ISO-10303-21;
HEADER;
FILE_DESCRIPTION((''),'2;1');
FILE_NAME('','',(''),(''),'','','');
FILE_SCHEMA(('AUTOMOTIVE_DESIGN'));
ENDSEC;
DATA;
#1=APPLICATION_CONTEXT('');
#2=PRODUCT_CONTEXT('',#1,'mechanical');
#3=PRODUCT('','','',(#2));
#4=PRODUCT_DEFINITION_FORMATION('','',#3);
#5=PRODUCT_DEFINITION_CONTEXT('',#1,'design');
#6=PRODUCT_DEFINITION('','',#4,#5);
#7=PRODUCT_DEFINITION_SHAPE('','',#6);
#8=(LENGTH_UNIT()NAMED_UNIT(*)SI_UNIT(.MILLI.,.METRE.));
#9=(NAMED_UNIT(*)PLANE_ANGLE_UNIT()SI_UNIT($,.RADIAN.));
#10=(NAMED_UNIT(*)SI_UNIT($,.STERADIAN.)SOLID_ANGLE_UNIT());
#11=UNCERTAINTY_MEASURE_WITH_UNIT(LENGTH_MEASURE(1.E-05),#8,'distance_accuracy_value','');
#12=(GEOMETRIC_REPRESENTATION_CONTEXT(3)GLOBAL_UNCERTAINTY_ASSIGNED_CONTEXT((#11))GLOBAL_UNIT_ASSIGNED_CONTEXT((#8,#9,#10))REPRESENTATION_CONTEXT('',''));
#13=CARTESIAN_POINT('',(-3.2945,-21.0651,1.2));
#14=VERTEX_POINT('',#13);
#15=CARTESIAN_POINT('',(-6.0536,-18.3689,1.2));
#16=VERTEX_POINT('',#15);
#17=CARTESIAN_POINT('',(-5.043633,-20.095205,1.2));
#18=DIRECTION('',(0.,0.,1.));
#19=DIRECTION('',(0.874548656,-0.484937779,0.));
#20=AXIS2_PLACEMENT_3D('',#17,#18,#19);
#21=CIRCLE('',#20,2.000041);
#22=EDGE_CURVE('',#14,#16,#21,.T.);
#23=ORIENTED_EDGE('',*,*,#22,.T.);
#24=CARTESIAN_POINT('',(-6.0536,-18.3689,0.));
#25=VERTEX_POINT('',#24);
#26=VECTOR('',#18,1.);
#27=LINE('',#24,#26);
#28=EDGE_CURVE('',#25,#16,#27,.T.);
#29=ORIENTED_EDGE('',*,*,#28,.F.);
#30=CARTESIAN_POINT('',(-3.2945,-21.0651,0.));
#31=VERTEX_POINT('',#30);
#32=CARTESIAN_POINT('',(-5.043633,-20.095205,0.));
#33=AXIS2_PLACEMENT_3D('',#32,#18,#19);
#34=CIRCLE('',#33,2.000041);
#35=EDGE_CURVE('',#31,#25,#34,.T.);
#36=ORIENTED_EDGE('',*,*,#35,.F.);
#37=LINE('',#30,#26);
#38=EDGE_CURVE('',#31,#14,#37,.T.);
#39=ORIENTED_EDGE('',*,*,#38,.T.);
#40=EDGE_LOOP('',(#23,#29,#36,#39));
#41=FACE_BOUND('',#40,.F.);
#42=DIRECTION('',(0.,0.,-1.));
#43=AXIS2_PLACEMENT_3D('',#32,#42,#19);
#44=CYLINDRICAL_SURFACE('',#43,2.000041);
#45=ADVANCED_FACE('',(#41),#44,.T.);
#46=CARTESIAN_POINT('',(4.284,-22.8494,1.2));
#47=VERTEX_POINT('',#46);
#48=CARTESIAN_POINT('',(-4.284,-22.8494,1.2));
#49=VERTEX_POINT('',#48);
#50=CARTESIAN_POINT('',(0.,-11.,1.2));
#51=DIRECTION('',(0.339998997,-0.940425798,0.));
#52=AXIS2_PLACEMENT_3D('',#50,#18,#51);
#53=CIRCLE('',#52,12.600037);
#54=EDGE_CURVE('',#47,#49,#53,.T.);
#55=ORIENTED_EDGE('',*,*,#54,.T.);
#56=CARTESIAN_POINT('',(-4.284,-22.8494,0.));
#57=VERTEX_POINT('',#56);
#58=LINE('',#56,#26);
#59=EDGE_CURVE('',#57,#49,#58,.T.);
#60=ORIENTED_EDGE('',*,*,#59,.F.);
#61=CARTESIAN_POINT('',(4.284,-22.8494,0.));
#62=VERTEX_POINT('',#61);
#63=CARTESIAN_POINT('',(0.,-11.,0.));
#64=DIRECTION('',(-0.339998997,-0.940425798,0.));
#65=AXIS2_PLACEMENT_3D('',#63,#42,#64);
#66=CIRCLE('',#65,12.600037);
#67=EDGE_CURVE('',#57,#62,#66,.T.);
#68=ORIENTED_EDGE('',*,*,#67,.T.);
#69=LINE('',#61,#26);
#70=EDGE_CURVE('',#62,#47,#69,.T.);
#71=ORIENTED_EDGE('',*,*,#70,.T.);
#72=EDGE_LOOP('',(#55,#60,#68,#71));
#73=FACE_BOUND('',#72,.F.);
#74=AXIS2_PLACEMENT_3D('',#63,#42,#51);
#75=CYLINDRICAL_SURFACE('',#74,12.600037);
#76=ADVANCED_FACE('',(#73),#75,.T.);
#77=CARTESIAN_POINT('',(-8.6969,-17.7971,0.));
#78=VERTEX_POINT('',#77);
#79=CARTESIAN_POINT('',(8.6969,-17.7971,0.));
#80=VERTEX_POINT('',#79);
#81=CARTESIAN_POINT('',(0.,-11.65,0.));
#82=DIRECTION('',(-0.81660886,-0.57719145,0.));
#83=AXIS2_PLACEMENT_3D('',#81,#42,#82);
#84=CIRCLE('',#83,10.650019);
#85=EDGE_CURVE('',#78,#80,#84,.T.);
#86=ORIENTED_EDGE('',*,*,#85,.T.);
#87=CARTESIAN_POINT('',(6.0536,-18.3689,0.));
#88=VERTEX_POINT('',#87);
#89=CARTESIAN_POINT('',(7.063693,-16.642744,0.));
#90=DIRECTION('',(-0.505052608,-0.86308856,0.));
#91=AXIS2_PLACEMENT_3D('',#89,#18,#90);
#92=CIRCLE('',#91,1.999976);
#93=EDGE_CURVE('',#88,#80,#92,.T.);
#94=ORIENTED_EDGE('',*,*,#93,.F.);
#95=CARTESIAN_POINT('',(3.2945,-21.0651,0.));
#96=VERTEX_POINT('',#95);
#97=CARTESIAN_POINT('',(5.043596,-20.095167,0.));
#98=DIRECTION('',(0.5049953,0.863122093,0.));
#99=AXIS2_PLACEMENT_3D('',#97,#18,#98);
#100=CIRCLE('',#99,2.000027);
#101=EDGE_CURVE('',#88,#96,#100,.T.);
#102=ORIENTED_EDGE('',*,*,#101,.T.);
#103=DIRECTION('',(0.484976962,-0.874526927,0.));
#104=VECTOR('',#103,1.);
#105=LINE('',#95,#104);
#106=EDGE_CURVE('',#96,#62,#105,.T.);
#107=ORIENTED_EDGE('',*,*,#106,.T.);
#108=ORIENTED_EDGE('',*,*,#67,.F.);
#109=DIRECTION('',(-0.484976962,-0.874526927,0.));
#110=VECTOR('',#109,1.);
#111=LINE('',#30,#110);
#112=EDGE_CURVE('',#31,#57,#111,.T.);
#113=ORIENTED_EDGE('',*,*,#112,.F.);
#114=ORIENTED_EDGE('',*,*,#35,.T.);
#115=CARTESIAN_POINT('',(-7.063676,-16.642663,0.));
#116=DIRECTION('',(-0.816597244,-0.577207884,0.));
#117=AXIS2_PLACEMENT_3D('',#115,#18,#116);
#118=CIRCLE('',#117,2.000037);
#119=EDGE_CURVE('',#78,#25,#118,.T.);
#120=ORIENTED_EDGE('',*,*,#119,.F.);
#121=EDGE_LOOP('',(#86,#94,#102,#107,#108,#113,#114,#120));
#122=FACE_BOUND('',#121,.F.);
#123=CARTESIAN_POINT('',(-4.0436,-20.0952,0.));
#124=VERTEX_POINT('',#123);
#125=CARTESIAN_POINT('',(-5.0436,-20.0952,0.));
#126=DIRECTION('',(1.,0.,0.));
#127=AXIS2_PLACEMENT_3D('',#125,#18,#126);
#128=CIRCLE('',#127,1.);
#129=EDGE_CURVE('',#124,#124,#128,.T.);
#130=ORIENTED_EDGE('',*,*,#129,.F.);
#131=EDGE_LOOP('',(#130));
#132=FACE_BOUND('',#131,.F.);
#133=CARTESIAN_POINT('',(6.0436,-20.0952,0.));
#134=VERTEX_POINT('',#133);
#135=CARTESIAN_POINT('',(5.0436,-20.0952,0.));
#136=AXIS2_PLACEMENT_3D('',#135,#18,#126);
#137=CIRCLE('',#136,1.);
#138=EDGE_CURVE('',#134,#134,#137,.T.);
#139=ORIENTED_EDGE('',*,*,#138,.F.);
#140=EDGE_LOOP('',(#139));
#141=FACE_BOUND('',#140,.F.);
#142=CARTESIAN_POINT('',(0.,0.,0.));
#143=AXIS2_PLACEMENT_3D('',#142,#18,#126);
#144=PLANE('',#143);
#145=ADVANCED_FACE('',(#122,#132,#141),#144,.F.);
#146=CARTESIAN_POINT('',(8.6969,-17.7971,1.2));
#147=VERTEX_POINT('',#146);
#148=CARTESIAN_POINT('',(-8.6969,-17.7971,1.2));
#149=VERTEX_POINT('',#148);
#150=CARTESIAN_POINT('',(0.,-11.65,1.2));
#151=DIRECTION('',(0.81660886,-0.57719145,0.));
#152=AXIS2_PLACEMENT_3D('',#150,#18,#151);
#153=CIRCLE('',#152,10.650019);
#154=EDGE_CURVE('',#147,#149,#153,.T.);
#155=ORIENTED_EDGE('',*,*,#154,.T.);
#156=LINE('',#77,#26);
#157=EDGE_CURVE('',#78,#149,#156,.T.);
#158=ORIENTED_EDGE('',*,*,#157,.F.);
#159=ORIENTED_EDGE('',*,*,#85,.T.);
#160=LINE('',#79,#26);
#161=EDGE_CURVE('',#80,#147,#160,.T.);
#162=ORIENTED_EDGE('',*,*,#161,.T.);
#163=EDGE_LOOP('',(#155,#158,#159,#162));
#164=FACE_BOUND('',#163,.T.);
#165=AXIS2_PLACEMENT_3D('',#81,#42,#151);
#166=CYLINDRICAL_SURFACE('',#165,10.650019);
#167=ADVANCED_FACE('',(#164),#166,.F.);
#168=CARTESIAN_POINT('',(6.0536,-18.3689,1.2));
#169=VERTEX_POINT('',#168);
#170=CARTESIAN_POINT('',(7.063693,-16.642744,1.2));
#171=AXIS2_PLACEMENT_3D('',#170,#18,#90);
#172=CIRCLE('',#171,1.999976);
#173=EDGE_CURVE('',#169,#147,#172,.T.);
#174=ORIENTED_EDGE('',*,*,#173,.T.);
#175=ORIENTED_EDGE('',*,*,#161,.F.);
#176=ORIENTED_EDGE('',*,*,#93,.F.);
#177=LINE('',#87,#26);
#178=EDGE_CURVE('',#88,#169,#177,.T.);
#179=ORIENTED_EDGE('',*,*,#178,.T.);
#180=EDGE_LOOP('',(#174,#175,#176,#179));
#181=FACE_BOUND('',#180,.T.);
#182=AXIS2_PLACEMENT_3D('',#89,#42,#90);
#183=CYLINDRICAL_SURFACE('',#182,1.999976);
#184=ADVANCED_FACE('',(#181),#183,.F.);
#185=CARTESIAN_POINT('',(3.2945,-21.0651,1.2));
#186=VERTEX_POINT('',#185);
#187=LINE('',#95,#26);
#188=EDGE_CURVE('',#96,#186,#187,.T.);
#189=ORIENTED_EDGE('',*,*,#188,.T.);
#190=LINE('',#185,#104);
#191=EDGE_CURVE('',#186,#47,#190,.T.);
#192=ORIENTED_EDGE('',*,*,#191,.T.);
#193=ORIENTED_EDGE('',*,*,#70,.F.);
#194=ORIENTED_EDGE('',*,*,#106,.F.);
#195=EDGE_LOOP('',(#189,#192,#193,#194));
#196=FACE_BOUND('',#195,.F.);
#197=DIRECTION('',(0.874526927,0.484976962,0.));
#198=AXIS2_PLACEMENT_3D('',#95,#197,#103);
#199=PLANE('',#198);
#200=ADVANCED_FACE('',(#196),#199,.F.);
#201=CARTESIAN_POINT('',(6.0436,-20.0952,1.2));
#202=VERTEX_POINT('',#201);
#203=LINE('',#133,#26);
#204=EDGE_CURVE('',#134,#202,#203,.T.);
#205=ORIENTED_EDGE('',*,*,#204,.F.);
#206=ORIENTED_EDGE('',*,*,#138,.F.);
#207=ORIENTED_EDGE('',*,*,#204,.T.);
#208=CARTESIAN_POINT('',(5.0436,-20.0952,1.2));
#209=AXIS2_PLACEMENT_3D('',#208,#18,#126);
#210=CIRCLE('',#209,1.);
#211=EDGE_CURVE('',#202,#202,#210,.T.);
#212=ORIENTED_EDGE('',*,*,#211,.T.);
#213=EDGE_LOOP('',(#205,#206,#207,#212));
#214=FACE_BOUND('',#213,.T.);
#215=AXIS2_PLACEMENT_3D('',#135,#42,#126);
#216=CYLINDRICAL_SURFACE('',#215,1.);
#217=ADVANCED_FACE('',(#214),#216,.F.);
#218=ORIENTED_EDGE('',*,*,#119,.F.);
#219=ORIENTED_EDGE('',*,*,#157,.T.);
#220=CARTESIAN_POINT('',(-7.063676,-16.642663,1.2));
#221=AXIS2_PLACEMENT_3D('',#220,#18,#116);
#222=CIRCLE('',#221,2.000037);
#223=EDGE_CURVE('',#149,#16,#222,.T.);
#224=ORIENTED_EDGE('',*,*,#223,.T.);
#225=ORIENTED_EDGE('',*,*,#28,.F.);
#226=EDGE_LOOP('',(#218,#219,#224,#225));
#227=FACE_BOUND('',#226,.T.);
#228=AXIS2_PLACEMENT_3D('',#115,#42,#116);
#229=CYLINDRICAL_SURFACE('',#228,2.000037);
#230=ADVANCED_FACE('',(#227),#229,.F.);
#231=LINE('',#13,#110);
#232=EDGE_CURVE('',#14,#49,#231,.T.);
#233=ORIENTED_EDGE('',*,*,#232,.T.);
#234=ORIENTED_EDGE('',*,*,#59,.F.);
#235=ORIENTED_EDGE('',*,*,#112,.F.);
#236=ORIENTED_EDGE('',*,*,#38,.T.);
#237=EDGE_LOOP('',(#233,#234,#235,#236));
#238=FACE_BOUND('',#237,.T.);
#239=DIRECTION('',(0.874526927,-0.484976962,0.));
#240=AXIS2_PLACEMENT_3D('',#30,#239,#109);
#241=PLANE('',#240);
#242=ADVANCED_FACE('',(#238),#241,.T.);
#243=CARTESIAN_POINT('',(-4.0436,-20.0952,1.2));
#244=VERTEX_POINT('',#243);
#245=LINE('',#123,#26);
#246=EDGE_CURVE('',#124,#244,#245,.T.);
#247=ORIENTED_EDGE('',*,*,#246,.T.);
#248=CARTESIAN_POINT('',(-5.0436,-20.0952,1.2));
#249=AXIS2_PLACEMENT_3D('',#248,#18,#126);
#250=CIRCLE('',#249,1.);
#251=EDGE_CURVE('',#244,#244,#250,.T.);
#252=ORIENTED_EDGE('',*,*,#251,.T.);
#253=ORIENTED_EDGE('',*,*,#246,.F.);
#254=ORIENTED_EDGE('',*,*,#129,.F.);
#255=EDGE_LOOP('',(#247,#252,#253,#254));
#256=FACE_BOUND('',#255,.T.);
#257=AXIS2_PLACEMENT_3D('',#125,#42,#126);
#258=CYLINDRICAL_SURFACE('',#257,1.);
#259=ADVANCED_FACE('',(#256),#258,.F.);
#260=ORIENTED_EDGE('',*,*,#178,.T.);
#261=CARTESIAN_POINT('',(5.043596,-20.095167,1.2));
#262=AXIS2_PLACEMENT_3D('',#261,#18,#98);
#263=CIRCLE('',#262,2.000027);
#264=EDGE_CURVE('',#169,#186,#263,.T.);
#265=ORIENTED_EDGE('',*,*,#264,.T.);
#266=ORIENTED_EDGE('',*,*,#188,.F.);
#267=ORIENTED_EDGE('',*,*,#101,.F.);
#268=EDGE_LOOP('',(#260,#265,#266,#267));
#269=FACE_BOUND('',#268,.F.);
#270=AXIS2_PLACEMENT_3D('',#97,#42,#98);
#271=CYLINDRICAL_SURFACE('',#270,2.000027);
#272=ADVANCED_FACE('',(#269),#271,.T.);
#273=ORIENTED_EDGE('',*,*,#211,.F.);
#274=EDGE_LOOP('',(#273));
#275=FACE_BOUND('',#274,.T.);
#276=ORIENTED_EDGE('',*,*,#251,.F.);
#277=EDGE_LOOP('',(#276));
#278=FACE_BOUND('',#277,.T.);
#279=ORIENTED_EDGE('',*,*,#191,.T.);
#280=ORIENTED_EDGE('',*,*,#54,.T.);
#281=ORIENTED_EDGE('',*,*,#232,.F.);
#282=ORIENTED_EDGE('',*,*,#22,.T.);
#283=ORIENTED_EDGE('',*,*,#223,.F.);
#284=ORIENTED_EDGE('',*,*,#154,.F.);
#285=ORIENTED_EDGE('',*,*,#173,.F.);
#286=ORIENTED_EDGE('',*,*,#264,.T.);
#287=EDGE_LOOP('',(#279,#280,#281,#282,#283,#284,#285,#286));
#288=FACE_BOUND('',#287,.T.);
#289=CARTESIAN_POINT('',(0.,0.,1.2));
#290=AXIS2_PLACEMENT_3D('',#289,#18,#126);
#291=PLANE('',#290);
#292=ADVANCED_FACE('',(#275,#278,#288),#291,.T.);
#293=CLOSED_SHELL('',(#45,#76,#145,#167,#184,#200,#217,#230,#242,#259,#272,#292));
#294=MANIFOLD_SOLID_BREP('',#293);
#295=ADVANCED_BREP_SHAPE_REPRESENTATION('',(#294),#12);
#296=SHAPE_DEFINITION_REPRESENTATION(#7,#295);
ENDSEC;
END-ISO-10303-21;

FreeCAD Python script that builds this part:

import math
import FreeCAD as App
import Part
import Sketcher
Q = App.Units.Quantity

doc = App.newDocument("Part")
body = doc.addObject("PartDesign::Body", "Body")

sketch1 = body.newObject("Sketcher::SketchObject", "Sketch")
sketch1.AttachmentSupport = (doc.getObject("XY_Plane"), [""])
sketch1.MapMode = "FlatFace"
sketch1.addGeometry([
    Part.ArcOfCircle(Part.Circle(App.Vector(7.1, -16.6, 0), App.Vector(0, 0, 1), 2), math.radians(-120), math.radians(-35)),
    Part.ArcOfCircle(Part.Circle(App.Vector(5, -20.1, 0), App.Vector(0, 0, 1), 2), math.radians(60), math.radians(209)),
    Part.LineSegment(App.Vector(3.3, -21.1, 0), App.Vector(4.3, -22.8, 0)),
    Part.ArcOfCircle(Part.Circle(App.Vector(0, -11, 0), App.Vector(0, 0, 1), 12.6), math.radians(-70), math.radians(250)),
    Part.LineSegment(App.Vector(-4.3, -22.8, 0), App.Vector(-3.3, -21.1, 0)),
    Part.ArcOfCircle(Part.Circle(App.Vector(-5, -20.1, 0), App.Vector(0, 0, 1), 2), math.radians(-29), math.radians(120)),
    Part.ArcOfCircle(Part.Circle(App.Vector(-7.1, -16.6, 0), App.Vector(0, 0, 1), 2), math.radians(-145), math.radians(-60)),
    Part.ArcOfCircle(Part.Circle(App.Vector(0, -11.7, 0), App.Vector(0, 0, 1), 10.7), math.radians(-35), math.radians(215)),
    Part.Circle(App.Vector(5, -20.1, 0), App.Vector(0, 0, 1), 1),
    Part.Circle(App.Vector(-5, -20.1, 0), App.Vector(0, 0, 1), 1),
], False)
sketch1.addConstraint([
    Sketcher.Constraint("Tangent", 0, 1, 1, 1),
    Sketcher.Constraint("Tangent", 1, 2, 2, 1),
    Sketcher.Constraint("Coincident", 2, 2, 3, 1),
    Sketcher.Constraint("Coincident", 3, 2, 4, 1),
    Sketcher.Constraint("Tangent", 4, 2, 5, 1),
    Sketcher.Constraint("Tangent", 5, 2, 6, 2),
    Sketcher.Constraint("Tangent", 6, 1, 7, 2),
    Sketcher.Constraint("Tangent", 7, 1, 0, 2),
    Sketcher.Constraint("Coincident", 8, 3, 1, 3),
    Sketcher.Constraint("Coincident", 9, 3, 5, 3),
    Sketcher.Constraint("Equal", 0, 1),
    Sketcher.Constraint("Equal", 1, 5),
    Sketcher.Constraint("Equal", 5, 6),
    Sketcher.Constraint("Equal", 8, 9),
    Sketcher.Constraint("Symmetric", 1, 3, 5, 3, -2),
    Sketcher.Constraint("Symmetric", 2, 2, 3, 2, -2),
    Sketcher.Constraint("PointOnObject", 7, 3, -2),
    Sketcher.Constraint("Diameter", 8, Q("2 mm")),
    Sketcher.Constraint("Radius", 0, Q("2 mm")),
    Sketcher.Constraint("Radius", 3, Q("12.6 mm")),
    Sketcher.Constraint("DistanceY", 3, 3, -1, 1, Q("11 mm")),
    Sketcher.Constraint("Radius", 7, Q("10.65 mm")),
    Sketcher.Constraint("DistanceY", 7, 3, 3, 3, Q("0.65 mm")),
    Sketcher.Constraint("DistanceX", -1, 1, 2, 2, Q("4.284 mm")),
    Sketcher.Constraint("Angle", 2, Q("-60.989 deg")),
    Sketcher.Constraint("DistanceX", 1, 3, 0, 3, Q("2.02 mm")),
])
pad1 = body.newObject("PartDesign::Pad", "Pad")
pad1.Profile = sketch1
pad1.Length = 1.2

doc.recompute()
